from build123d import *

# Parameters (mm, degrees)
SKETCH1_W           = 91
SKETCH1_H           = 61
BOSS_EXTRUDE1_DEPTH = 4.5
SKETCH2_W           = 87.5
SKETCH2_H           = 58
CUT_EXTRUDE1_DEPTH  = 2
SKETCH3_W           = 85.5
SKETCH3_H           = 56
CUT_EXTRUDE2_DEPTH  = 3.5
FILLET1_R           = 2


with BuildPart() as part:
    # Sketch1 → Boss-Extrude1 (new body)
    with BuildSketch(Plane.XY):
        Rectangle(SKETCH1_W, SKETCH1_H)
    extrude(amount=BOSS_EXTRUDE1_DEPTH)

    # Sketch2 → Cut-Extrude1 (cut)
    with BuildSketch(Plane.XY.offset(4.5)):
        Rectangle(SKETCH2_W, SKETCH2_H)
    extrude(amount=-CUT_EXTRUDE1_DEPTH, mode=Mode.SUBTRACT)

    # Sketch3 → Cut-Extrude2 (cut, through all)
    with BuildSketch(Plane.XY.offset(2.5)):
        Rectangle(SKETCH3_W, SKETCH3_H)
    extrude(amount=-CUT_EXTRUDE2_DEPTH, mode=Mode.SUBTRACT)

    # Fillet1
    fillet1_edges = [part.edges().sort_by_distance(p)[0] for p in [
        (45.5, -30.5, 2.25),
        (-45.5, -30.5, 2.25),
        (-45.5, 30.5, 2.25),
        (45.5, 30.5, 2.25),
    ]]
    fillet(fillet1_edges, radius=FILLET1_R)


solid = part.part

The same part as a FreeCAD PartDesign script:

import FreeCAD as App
import Part
import Sketcher

V = App.Vector


def edges_at(feature, points):
    """Names of the edges that pass closest to the given points."""
    edges = feature.Shape.Edges
    near = lambda p: min(range(len(edges)), key=lambda i: edges[i].distToShape(Part.Vertex(*p))[0])
    return sorted({f"Edge{near(p) + 1}" for p in points})


def add_polygon(sketch, points):
    """Adds a closed chain of lines whose ends are joined by coincident constraints."""
    first, n = sketch.GeometryCount, len(points)
    for a, b in zip(points, points[1:] + points[:1]):
        sketch.addGeometry(Part.LineSegment(App.Vector(*a, 0), App.Vector(*b, 0)), False)
    for i in range(n):
        sketch.addConstraint(Sketcher.Constraint("Coincident", first + i, 2, first + (i + 1) % n, 1))

doc = App.newDocument("Part")
body = doc.addObject("PartDesign::Body", "Body")

# Sketch on XY plane
sketch1 = body.newObject("Sketcher::SketchObject", "Sketch")
sketch1.AttachmentSupport = (doc.getObject("XY_Plane"), [""])
sketch1.MapMode = "FlatFace"
add_polygon(sketch1, [(-46, 30), (-46, -30), (46, -30), (46, 30)])  # lines 0-3
sketch1.addConstraint([
    Sketcher.Constraint("Vertical", 0),
    Sketcher.Constraint("Horizontal", 1),
    Sketcher.Constraint("Vertical", 2),
    Sketcher.Constraint("Horizontal", 3),
    Sketcher.Constraint("Symmetric", 0, 2, 2, 2, -1, 1),
    Sketcher.Constraint("DistanceX", 1, 1, 1, 2, 91.0),
    Sketcher.Constraint("DistanceY", 0, 2, 0, 1, 61.0),
])
pad1 = body.newObject("PartDesign::Pad", "Pad")
pad1.Profile = sketch1
pad1.Length = 4.5

# Sketch on XY plane
sketch2 = body.newObject("Sketcher::SketchObject", "Sketch001")
sketch2.AttachmentSupport = (doc.getObject("XY_Plane"), [""])
sketch2.MapMode = "FlatFace"
sketch2.AttachmentOffset = App.Placement(V(0, 0, 4.5), App.Rotation())
add_polygon(sketch2, [(-44, 29), (-44, -29), (44, -29), (44, 29)])  # lines 0-3
sketch2.addConstraint([
    Sketcher.Constraint("Vertical", 0),
    Sketcher.Constraint("Horizontal", 1),
    Sketcher.Constraint("Vertical", 2),
    Sketcher.Constraint("Horizontal", 3),
    Sketcher.Constraint("Symmetric", 0, 2, 2, 2, -1, 1),
    Sketcher.Constraint("DistanceY", 0, 2, 0, 1, 58.0),
    Sketcher.Constraint("DistanceX", 1, 1, 1, 2, 87.5),
])
pocket1 = body.newObject("PartDesign::Pocket", "Pocket")
pocket1.Profile = sketch2
pocket1.Length = 2

# Sketch on XY plane
sketch3 = body.newObject("Sketcher::SketchObject", "Sketch002")
sketch3.AttachmentSupport = (doc.getObject("XY_Plane"), [""])
sketch3.MapMode = "FlatFace"
sketch3.AttachmentOffset = App.Placement(V(0, 0, 2.5), App.Rotation())
add_polygon(sketch3, [(-43, 28), (-43, -28), (43, -28), (43, 28)])  # lines 0-3
sketch3.addConstraint([
    Sketcher.Constraint("Vertical", 0),
    Sketcher.Constraint("Horizontal", 1),
    Sketcher.Constraint("Vertical", 2),
    Sketcher.Constraint("Horizontal", 3),
    Sketcher.Constraint("Symmetric", 0, 2, 2, 2, -1, 1),
    Sketcher.Constraint("DistanceY", 0, 2, 0, 1, 56.0),
    Sketcher.Constraint("DistanceX", 1, 1, 1, 2, 85.5),
])
pocket2 = body.newObject("PartDesign::Pocket", "Pocket001")
pocket2.Profile = sketch3
pocket2.Type = "ThroughAll"
doc.recompute()

fillet = body.newObject("PartDesign::Fillet", "Fillet")
fillet.Base = (pocket2, edges_at(pocket2, [
    (45.5, -30.5, 2.25),
    (-45.5, -30.5, 2.25),
    (-45.5, 30.5, 2.25),
    (45.5, 30.5, 2.25),
]))
fillet.Radius = 2

doc.recompute()
